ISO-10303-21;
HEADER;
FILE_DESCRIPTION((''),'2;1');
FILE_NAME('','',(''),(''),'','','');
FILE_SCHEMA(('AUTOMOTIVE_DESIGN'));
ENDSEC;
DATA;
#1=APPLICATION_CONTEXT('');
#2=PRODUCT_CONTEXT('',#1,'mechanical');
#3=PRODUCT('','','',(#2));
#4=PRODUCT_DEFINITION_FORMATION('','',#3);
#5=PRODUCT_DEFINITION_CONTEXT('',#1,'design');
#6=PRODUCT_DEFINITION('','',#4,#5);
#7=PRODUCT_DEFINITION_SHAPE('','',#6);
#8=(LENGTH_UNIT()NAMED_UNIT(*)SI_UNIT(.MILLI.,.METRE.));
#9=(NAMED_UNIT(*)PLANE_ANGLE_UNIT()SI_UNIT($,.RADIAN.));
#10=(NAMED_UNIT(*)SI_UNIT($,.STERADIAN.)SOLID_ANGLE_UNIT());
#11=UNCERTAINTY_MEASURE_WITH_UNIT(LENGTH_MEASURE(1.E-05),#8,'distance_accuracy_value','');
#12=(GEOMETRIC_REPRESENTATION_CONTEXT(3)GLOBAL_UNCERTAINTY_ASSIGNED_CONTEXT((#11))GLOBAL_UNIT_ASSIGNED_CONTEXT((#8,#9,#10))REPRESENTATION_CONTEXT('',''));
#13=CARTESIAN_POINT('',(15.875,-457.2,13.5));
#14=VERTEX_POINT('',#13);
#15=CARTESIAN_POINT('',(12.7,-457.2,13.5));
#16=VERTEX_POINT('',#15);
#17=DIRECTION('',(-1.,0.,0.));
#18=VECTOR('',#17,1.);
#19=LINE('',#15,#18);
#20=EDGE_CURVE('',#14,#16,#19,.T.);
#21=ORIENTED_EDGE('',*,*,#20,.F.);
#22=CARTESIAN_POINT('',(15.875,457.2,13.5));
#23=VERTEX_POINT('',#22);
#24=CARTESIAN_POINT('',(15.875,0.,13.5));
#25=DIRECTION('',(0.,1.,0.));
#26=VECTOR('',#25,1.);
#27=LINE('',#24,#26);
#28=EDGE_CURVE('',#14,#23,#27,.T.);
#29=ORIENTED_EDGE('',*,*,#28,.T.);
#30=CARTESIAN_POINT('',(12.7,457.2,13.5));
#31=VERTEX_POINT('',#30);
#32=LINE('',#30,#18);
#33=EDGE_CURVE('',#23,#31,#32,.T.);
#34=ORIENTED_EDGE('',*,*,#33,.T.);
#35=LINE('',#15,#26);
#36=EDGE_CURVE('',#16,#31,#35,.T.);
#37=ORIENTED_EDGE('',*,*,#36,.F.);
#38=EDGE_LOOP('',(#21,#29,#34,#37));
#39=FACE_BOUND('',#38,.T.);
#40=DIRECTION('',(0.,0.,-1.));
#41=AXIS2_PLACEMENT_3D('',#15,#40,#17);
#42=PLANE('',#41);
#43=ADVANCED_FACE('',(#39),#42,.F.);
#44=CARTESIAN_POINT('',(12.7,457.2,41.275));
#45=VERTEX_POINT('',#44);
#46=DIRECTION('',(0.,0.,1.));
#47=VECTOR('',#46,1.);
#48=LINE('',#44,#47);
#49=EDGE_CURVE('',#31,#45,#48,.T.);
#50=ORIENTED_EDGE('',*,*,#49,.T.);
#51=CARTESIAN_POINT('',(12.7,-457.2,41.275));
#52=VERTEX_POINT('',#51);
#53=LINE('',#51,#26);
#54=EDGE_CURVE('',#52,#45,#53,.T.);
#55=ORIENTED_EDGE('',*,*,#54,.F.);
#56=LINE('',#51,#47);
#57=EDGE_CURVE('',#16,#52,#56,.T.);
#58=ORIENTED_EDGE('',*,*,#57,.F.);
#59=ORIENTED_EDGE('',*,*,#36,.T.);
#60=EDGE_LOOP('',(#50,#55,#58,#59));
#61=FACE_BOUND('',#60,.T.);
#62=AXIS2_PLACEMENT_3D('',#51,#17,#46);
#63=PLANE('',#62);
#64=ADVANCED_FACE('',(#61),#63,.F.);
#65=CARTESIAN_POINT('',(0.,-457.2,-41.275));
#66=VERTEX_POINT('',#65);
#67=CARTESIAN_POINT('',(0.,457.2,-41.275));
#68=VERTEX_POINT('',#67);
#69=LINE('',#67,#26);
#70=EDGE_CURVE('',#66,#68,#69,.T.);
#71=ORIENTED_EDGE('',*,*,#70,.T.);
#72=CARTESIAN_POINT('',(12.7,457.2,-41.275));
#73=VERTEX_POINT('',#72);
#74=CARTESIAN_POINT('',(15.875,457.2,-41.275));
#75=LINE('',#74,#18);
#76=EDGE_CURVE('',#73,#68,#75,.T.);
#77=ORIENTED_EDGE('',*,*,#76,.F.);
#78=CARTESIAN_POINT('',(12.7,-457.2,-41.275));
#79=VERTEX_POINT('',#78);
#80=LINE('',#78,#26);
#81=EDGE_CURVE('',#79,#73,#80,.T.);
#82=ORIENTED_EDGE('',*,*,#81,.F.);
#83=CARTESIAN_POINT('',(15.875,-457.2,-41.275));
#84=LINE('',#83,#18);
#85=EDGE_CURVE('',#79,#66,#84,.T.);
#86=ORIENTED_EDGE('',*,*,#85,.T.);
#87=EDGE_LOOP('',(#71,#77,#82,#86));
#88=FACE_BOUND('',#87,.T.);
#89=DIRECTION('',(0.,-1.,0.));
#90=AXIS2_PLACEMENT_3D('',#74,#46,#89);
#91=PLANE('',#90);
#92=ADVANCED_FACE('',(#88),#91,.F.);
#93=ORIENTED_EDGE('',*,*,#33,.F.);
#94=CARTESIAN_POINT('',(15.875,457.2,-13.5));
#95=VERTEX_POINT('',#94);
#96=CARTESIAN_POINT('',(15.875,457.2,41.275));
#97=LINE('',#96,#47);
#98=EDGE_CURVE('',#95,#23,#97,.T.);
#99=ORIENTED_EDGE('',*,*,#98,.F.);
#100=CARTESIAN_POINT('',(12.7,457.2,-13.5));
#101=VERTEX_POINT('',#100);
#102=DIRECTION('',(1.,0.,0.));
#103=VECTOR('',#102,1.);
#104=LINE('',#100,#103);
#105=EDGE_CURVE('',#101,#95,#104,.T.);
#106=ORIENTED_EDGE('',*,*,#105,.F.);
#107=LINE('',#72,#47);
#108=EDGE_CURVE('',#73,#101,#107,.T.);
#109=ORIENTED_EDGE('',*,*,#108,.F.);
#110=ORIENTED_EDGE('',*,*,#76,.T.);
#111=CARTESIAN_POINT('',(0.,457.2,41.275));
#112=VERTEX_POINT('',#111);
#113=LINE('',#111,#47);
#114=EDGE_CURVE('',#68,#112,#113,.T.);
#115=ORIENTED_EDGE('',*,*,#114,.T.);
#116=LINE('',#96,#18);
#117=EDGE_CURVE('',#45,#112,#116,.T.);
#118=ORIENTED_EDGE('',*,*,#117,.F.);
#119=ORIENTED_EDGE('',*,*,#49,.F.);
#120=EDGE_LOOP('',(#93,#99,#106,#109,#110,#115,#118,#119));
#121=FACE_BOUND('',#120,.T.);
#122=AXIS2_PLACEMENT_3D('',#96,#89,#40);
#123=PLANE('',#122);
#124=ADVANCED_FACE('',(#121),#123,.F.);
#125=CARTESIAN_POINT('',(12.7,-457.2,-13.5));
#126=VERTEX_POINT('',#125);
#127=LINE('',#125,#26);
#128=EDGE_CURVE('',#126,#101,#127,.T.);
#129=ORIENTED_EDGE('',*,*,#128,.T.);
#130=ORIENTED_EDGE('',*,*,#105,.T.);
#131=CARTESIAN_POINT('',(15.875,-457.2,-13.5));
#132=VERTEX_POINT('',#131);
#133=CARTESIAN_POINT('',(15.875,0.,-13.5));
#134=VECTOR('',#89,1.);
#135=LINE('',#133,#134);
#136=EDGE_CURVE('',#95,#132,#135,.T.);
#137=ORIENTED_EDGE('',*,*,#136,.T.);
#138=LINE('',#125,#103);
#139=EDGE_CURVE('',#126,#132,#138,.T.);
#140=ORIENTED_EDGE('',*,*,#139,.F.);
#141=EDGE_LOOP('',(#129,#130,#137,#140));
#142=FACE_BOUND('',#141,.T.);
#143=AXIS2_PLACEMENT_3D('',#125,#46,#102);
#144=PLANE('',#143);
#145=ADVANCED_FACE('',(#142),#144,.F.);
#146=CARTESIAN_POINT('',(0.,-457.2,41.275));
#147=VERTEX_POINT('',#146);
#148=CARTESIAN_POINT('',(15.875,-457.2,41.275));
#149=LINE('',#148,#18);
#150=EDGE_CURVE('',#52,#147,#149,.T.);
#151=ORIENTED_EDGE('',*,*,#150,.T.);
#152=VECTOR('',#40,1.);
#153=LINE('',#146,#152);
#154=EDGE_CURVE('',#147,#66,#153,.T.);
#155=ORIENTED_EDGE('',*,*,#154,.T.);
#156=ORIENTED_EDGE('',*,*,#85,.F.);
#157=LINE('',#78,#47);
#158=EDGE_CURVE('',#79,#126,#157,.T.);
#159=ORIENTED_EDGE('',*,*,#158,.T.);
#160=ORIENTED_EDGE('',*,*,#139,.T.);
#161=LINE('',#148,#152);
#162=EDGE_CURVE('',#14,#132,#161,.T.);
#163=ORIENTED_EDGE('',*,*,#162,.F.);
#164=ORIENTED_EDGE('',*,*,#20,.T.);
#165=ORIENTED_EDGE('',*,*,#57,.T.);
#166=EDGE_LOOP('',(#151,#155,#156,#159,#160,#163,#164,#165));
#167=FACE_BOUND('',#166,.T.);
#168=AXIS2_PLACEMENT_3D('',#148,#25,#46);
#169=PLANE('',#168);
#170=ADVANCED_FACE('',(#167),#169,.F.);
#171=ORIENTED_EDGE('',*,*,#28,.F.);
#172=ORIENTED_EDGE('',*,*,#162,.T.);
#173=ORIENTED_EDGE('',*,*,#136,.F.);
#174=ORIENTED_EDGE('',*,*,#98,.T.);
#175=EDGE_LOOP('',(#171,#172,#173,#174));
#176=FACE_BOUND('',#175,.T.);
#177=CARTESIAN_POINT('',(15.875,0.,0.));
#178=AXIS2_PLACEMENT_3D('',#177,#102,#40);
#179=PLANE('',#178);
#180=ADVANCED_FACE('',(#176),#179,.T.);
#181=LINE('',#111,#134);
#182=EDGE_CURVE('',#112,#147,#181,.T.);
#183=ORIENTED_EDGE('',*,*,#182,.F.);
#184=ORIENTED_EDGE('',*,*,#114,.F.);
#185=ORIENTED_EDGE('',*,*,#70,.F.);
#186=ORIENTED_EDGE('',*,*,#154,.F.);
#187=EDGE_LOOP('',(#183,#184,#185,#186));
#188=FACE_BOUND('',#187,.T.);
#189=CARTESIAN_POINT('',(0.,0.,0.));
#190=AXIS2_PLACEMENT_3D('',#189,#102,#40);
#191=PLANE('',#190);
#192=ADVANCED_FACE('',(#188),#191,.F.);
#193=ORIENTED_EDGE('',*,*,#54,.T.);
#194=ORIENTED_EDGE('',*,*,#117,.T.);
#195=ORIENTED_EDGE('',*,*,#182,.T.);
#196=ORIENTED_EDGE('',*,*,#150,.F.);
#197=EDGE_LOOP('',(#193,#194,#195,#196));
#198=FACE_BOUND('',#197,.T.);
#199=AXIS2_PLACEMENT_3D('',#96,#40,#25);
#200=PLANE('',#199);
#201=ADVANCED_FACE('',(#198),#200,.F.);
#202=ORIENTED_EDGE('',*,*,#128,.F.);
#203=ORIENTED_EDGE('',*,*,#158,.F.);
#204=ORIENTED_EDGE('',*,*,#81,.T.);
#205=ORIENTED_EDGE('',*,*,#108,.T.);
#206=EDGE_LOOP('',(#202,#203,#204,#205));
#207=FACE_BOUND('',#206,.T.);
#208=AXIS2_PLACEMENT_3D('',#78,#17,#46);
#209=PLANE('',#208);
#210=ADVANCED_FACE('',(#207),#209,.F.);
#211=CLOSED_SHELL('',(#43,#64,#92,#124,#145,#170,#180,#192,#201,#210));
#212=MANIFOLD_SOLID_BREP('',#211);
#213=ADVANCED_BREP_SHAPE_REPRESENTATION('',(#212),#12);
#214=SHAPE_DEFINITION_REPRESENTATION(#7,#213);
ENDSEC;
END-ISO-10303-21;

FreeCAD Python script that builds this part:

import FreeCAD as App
import Part
import Sketcher
from FreeCAD import Vector
Q = App.Units.Quantity

doc = App.newDocument("Part")
params = doc.addObject("Spreadsheet::Sheet", "Params")
for row, (alias, value) in enumerate([
    ("sketch1_width", "36 in"),
    ("sketch1_height", "3.25 in"),
    ("pad1_length", "0.625 in"),
    ("sketch2_width", "1 in"),
    ("sketch2_width2", "0.25 in"),
    ("sketch2_height", "3.25 in"),
], start=1):
    params.set(f"A{row}", alias)
    params.set(f"B{row}", "=" + value)
    params.setAlias(f"B{row}", alias)

body = doc.addObject("PartDesign::Body", "Body")

# Sketch on YZ plane
sketch1 = body.newObject("Sketcher::SketchObject", "Sketch")
sketch1.AttachmentSupport = (doc.getObject("YZ_Plane"), [""])
sketch1.MapMode = "FlatFace"
sketch1.addGeometry(Part.LineSegment(Vector(457, 41, 0), Vector(-457, 41, 0)), False)
sketch1.addGeometry(Part.LineSegment(Vector(-457, 41, 0), Vector(-457, -41, 0)), False)
sketch1.addGeometry(Part.LineSegment(Vector(-457, -41, 0), Vector(457, -41, 0)), False)
sketch1.addGeometry(Part.LineSegment(Vector(457, -41, 0), Vector(457, 41, 0)), False)
sketch1.addConstraint(Sketcher.Constraint("Coincident", 0, 2, 1, 1))
sketch1.addConstraint(Sketcher.Constraint("Coincident", 1, 2, 2, 1))
sketch1.addConstraint(Sketcher.Constraint("Coincident", 2, 2, 3, 1))
sketch1.addConstraint(Sketcher.Constraint("Coincident", 3, 2, 0, 1))
sketch1.addConstraint(Sketcher.Constraint("Horizontal", 0))
sketch1.addConstraint(Sketcher.Constraint("Vertical", 1))
sketch1.addConstraint(Sketcher.Constraint("Horizontal", 2))
sketch1.addConstraint(Sketcher.Constraint("Vertical", 3))
sketch1.addConstraint(Sketcher.Constraint("Symmetric", 0, 2, 2, 2, -1, 1))
sketch1.addConstraint(Sketcher.Constraint("DistanceX", 0, 2, 0, 1, Q("36 in")))
sketch1.addConstraint(Sketcher.Constraint("DistanceY", 1, 2, 1, 1, Q("3.25 in")))
sketch1.setExpression("Constraints[9]", "Params.sketch1_width")
sketch1.setExpression("Constraints[10]", "Params.sketch1_height")
pad1 = body.newObject("PartDesign::Pad", "Pad")
pad1.Profile = sketch1
pad1.setExpression("Length", "Params.pad1_length")

# Sketch on XZ plane
sketch2 = body.newObject("Sketcher::SketchObject", "Sketch001")
sketch2.AttachmentSupport = (doc.getObject("XZ_Plane"), [""])
sketch2.MapMode = "FlatFace"
sketch2.AttachmentOffset = App.Placement(Vector(0, 0, -18 * 25.4), App.Rotation())
sketch2.addGeometry(Part.LineSegment(Vector(38, -41, 0), Vector(13, -41, 0)), False)
sketch2.addGeometry(Part.LineSegment(Vector(13, -41, 0), Vector(13, -14, 0)), False)
sketch2.addGeometry(Part.LineSegment(Vector(13, -14, 0), Vector(19, -14, 0)), False)
sketch2.addGeometry(Part.LineSegment(Vector(19, -14, 0), Vector(19, 14, 0)), False)
sketch2.addGeometry(Part.LineSegment(Vector(19, 14, 0), Vector(13, 14, 0)), False)
sketch2.addGeometry(Part.LineSegment(Vector(13, 14, 0), Vector(13, 41, 0)), False)
sketch2.addGeometry(Part.LineSegment(Vector(13, 41, 0), Vector(38, 41, 0)), False)
sketch2.addGeometry(Part.LineSegment(Vector(38, 41, 0), Vector(38, -41, 0)), False)
sketch2.addConstraint(Sketcher.Constraint("Coincident", 0, 2, 1, 1))
sketch2.addConstraint(Sketcher.Constraint("Coincident", 1, 2, 2, 1))
sketch2.addConstraint(Sketcher.Constraint("Coincident", 2, 2, 3, 1))
sketch2.addConstraint(Sketcher.Constraint("Coincident", 3, 2, 4, 1))
sketch2.addConstraint(Sketcher.Constraint("Coincident", 4, 2, 5, 1))
sketch2.addConstraint(Sketcher.Constraint("Coincident", 5, 2, 6, 1))
sketch2.addConstraint(Sketcher.Constraint("Coincident", 6, 2, 7, 1))
sketch2.addConstraint(Sketcher.Constraint("Coincident", 7, 2, 0, 1))
sketch2.addConstraint(Sketcher.Constraint("Horizontal", 0))
sketch2.addConstraint(Sketcher.Constraint("Vertical", 1))
sketch2.addConstraint(Sketcher.Constraint("Horizontal", 2))
sketch2.addConstraint(Sketcher.Constraint("Vertical", 3))
sketch2.addConstraint(Sketcher.Constraint("Horizontal", 4))
sketch2.addConstraint(Sketcher.Constraint("Vertical", 5))
sketch2.addConstraint(Sketcher.Constraint("Horizontal", 6))
sketch2.addConstraint(Sketcher.Constraint("Vertical", 7))
sketch2.addConstraint(Sketcher.Constraint("Symmetric", 1, 2, 4, 2, -1))
sketch2.addConstraint(Sketcher.Constraint("Equal", 1, 5))
sketch2.addConstraint(Sketcher.Constraint("DistanceX", 0, 2, 0, 1, Q("1 in")))
sketch2.addConstraint(Sketcher.Constraint("DistanceX", 2, 1, 2, 2, Q("0.25 in")))
sketch2.addConstraint(Sketcher.Constraint("DistanceY", 7, 2, 7, 1, Q("3.25 in")))
sketch2.addConstraint(Sketcher.Constraint("DistanceX", -1, 1, 0, 2, Q("0.5 in")))
sketch2.addConstraint(Sketcher.Constraint("DistanceY", 1, 1, 1, 2, Q("27.775 mm")))
sketch2.setExpression("Constraints[18]", "Params.sketch2_width")
sketch2.setExpression("Constraints[19]", "Params.sketch2_width2")
sketch2.setExpression("Constraints[20]", "Params.sketch2_height")
pocket1 = body.newObject("PartDesign::Pocket", "Pocket")
pocket1.Profile = sketch2
pocket1.Type = "ThroughAll"
pocket1.Reversed = True

doc.recompute()
